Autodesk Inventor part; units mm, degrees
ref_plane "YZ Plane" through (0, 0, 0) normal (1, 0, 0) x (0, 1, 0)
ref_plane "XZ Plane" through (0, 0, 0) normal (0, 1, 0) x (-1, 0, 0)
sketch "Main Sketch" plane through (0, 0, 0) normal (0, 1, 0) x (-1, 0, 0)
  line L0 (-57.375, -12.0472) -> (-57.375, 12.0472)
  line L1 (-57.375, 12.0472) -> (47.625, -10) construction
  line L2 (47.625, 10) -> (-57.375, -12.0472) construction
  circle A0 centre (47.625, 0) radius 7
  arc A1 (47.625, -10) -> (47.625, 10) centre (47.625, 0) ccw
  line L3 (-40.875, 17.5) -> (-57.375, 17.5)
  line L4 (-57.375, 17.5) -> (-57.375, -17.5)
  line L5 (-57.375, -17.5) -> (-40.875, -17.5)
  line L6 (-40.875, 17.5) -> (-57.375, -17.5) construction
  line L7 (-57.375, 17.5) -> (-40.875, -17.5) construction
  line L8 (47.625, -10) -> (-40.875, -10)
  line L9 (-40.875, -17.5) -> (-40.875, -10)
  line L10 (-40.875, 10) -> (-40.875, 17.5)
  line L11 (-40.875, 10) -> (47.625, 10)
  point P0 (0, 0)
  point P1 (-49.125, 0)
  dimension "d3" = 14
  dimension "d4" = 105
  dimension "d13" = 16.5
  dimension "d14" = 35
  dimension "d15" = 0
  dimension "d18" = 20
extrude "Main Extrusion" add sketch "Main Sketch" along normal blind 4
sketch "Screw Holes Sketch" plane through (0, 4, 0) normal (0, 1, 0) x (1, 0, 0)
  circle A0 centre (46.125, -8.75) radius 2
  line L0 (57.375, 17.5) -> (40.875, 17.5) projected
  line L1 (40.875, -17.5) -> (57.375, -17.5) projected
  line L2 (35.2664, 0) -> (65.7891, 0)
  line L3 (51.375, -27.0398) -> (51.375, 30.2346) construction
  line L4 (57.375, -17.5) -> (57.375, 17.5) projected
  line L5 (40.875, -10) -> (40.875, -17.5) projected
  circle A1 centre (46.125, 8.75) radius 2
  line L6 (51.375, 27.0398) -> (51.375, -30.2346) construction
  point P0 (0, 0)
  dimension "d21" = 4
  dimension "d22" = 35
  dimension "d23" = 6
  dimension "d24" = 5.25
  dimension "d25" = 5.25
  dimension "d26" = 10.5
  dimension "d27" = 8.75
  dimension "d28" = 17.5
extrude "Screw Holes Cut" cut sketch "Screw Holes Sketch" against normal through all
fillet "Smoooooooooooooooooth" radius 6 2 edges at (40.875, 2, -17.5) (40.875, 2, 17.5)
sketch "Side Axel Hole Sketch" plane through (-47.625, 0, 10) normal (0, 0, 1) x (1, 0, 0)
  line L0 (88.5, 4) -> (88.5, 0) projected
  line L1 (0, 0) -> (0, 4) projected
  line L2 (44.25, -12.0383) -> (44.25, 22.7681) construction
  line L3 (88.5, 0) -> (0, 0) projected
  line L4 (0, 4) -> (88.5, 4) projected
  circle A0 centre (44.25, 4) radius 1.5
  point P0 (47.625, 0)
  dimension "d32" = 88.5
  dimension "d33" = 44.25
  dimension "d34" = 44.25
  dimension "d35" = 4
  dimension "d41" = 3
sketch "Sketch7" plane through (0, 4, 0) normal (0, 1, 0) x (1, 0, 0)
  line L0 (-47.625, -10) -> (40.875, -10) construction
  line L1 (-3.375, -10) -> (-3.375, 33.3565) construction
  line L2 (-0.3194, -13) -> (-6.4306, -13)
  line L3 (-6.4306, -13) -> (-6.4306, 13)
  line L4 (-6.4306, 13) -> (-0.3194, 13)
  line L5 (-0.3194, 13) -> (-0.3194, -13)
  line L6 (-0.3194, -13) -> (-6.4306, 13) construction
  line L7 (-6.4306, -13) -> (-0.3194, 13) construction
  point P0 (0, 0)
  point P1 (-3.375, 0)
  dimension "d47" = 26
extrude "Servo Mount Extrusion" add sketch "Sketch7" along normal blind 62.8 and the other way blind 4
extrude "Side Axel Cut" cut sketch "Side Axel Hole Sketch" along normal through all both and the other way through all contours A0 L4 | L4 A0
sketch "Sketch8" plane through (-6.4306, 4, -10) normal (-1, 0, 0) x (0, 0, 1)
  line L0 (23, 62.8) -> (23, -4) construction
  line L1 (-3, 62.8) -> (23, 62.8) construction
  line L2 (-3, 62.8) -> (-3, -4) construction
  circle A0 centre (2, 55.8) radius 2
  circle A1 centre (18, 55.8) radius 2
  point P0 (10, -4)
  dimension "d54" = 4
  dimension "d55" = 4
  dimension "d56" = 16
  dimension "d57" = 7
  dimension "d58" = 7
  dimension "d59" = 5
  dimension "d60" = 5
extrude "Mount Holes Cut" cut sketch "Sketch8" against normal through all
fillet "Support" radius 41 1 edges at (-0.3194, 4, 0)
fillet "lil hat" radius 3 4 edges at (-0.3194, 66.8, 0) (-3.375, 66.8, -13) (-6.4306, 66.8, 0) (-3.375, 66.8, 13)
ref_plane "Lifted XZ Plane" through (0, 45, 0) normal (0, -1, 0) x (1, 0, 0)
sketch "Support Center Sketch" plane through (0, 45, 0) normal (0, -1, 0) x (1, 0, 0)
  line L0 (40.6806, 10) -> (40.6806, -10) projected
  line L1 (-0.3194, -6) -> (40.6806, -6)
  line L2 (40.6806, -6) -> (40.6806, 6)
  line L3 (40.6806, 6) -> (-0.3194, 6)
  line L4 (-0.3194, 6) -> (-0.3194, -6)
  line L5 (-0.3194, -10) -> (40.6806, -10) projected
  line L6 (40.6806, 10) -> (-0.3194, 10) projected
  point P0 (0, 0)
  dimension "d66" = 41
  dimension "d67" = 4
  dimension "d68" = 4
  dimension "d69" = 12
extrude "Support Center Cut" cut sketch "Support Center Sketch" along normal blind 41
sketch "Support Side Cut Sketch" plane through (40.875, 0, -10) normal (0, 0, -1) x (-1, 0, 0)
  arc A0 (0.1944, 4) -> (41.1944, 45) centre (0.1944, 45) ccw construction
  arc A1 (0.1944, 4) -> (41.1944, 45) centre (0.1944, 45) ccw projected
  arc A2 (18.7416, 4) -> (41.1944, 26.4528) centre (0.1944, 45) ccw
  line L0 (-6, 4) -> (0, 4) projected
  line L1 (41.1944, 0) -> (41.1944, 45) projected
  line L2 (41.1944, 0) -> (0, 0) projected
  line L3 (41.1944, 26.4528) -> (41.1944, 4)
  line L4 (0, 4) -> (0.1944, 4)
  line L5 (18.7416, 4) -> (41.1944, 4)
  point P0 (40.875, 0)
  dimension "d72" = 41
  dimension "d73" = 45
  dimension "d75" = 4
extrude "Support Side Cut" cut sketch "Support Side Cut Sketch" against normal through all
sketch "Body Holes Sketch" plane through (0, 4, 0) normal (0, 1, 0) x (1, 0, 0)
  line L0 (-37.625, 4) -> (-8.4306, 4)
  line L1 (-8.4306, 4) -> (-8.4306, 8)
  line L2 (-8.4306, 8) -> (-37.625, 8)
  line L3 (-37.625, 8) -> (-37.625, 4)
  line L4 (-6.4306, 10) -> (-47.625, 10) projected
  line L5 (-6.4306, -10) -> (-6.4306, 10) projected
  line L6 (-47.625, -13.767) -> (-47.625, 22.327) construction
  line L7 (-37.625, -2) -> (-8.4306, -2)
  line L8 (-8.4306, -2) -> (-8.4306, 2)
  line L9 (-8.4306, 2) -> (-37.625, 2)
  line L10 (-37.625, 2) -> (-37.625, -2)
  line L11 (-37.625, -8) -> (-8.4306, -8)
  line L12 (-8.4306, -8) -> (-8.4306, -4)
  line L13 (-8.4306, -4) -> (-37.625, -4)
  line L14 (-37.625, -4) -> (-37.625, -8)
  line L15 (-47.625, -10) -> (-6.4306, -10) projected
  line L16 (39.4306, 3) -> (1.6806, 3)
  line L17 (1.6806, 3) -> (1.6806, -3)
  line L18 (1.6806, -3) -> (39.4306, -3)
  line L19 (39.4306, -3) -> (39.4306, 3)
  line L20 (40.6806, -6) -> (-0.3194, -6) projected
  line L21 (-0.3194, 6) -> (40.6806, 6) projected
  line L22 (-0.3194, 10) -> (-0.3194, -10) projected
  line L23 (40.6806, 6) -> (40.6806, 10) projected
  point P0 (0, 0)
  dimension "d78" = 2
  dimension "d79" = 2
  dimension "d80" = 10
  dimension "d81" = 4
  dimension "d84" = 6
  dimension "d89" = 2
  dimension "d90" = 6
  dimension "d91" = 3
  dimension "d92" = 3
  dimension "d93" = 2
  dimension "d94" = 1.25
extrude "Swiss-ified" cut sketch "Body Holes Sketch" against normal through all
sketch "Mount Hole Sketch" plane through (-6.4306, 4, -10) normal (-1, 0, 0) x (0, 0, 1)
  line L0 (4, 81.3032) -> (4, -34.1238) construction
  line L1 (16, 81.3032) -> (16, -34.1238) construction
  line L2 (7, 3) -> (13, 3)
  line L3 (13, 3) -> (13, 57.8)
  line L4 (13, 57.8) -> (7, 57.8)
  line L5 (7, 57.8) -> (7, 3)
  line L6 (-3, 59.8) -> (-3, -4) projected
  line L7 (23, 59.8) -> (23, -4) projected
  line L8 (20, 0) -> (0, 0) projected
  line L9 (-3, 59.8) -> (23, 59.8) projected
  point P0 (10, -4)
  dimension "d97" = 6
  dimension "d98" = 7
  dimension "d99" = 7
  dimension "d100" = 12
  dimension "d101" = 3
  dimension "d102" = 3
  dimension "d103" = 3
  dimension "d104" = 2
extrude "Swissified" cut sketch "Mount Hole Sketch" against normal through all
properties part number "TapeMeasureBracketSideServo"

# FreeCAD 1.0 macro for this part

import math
import FreeCAD as App
import Part
import Sketcher
from FreeCAD import Vector


def edges_at(feature, points):
    """Names of the edges that pass closest to the given points."""
    edges = feature.Shape.Edges
    near = lambda p: min(range(len(edges)), key=lambda i: edges[i].distToShape(Part.Vertex(*p))[0])
    return sorted({f"Edge{near(p) + 1}" for p in points})


def add_polygon(sketch, points):
    """Adds a closed chain of lines whose ends are joined by coincident constraints."""
    first, n = sketch.GeometryCount, len(points)
    for a, b in zip(points, points[1:] + points[:1]):
        sketch.addGeometry(Part.LineSegment(App.Vector(*a, 0), App.Vector(*b, 0)), False)
    for i in range(n):
        sketch.addConstraint(Sketcher.Constraint("Coincident", first + i, 2, first + (i + 1) % n, 1))

doc = App.newDocument("Part")
body = doc.addObject("PartDesign::Body", "Body")

# Sketch on XZ plane
sketch1 = body.newObject("Sketcher::SketchObject", "Sketch")
sketch1.AttachmentSupport = (doc.getObject("XZ_Plane"), [""])
sketch1.MapMode = "FlatFace"
sketch1.addGeometry(Part.LineSegment(Vector(57.375, 17.5, 0), Vector(57.375, -17.5, 0)), False)
sketch1.addGeometry(Part.LineSegment(Vector(57.375, -17.5, 0), Vector(40.875, -17.5, 0)), False)
sketch1.addGeometry(Part.LineSegment(Vector(40.875, -17.5, 0), Vector(40.875, -10, 0)), False)
sketch1.addGeometry(Part.LineSegment(Vector(40.875, -10, 0), Vector(-47.625, -10, 0)), False)
sketch1.addGeometry(Part.ArcOfCircle(Part.Circle(Vector(-47.625, 0, 0), Vector(0, 0, 1), 10), math.radians(90), math.radians(270)), False)
sketch1.addGeometry(Part.LineSegment(Vector(-47.625, 10, 0), Vector(40.875, 10, 0)), False)
sketch1.addGeometry(Part.LineSegment(Vector(40.875, 10, 0), Vector(40.875, 17.5, 0)), False)
sketch1.addGeometry(Part.LineSegment(Vector(40.875, 17.5, 0), Vector(57.375, 17.5, 0)), False)
sketch1.addGeometry(Part.Circle(Vector(-47.625, 0, 0), Vector(0, 0, 1), 7), False)
sketch1.addConstraint(Sketcher.Constraint("Coincident", 0, 2, 1, 1))
sketch1.addConstraint(Sketcher.Constraint("Coincident", 1, 2, 2, 1))
sketch1.addConstraint(Sketcher.Constraint("Coincident", 2, 2, 3, 1))
sketch1.addConstraint(Sketcher.Constraint("Tangent", 3, 2, 4, 2))
sketch1.addConstraint(Sketcher.Constraint("Tangent", 4, 1, 5, 1))
sketch1.addConstraint(Sketcher.Constraint("Coincident", 5, 2, 6, 1))
sketch1.addConstraint(Sketcher.Constraint("Coincident", 6, 2, 7, 1))
sketch1.addConstraint(Sketcher.Constraint("Coincident", 7, 2, 0, 1))
sketch1.addConstraint(Sketcher.Constraint("Vertical", 0))
sketch1.addConstraint(Sketcher.Constraint("Horizontal", 1))
sketch1.addConstraint(Sketcher.Constraint("Vertical", 2))
sketch1.addConstraint(Sketcher.Constraint("Horizontal", 3))
sketch1.addConstraint(Sketcher.Constraint("Horizontal", 5))
sketch1.addConstraint(Sketcher.Constraint("Vertical", 6))
sketch1.addConstraint(Sketcher.Constraint("Horizontal", 7))
sketch1.addConstraint(Sketcher.Constraint("Coincident", 8, 3, 4, 3))
sketch1.addConstraint(Sketcher.Constraint("Symmetric", 2, 2, 5, 2, -1))
sketch1.addConstraint(Sketcher.Constraint("Equal", 2, 6))
sketch1.addConstraint(Sketcher.Constraint("Diameter", 8, 14.0))
sketch1.addConstraint(Sketcher.Constraint("Radius", 4, 10.0))
sketch1.addConstraint(Sketcher.Constraint("DistanceY", 0, 2, 0, 1, 35.0))
sketch1.addConstraint(Sketcher.Constraint("DistanceX", 1, 2, 1, 1, 16.5))
sketch1.addConstraint(Sketcher.Constraint("DistanceX", 4, 3, 0, 2, 105.0))
sketch1.addConstraint(Sketcher.Constraint("DistanceX", 4, 3, -1, 1, 47.625))
pad1 = body.newObject("PartDesign::Pad", "Pad")
pad1.Profile = sketch1
pad1.Length = 4
pad1.Reversed = True

# Sketch on XZ plane
sketch2 = body.newObject("Sketcher::SketchObject", "Sketch001")
sketch2.AttachmentSupport = (doc.getObject("XZ_Plane"), [""])
sketch2.MapMode = "FlatFace"
sketch2.AttachmentOffset = App.Placement(Vector(0, 0, -4), App.Rotation())
sketch2.addGeometry(Part.Circle(Vector(46.125, 8.75, 0), Vector(0, 0, 1), 2), False)
sketch2.addGeometry(Part.Circle(Vector(46.125, -8.75, 0), Vector(0, 0, 1), 2), False)
sketch2.addConstraint(Sketcher.Constraint("Equal", 0, 1))
sketch2.addConstraint(Sketcher.Constraint("Symmetric", 0, 3, 1, 3, -1))
sketch2.addConstraint(Sketcher.Constraint("Diameter", 0, 4.0))
sketch2.addConstraint(Sketcher.Constraint("DistanceY", 1, 3, 0, 3, 17.5))
sketch2.addConstraint(Sketcher.Constraint("DistanceX", -1, 1, 0, 3, 46.125))
pocket1 = body.newObject("PartDesign::Pocket", "Pocket")
pocket1.Profile = sketch2
pocket1.Type = "ThroughAll"
pocket1.Reversed = True
doc.recompute()

fillet = body.newObject("PartDesign::Fillet", "Fillet")
fillet.Base = (pocket1, edges_at(pocket1, [(40.875, 2, -17.5), (40.875, 2, 17.5)]))
fillet.Radius = 6

# Sketch on XZ plane
sketch3 = body.newObject("Sketcher::SketchObject", "Sketch002")
sketch3.AttachmentSupport = (doc.getObject("XZ_Plane"), [""])
sketch3.MapMode = "FlatFace"
sketch3.AttachmentOffset = App.Placement(Vector(0, 0, -4), App.Rotation())
add_polygon(sketch3, [(-6.4306, 13), (-0.3194, 13), (-0.3194, -13), (-6.4306, -13)])  # lines 0-3
sketch3.addConstraint(Sketcher.Constraint("Horizontal", 0))
sketch3.addConstraint(Sketcher.Constraint("Vertical", 1))
sketch3.addConstraint(Sketcher.Constraint("Horizontal", 2))
sketch3.addConstraint(Sketcher.Constraint("Vertical", 3))
sketch3.addConstraint(Sketcher.Constraint("DistanceY", 1, 2, 1, 1, 26.0))
sketch3.addConstraint(Sketcher.Constraint("DistanceY", -1, 1, 0, 2, 13.0))
sketch3.addConstraint(Sketcher.Constraint("DistanceX", 0, 1, 0, 2, 6.1112))
sketch3.addConstraint(Sketcher.Constraint("DistanceX", 0, 2, -1, 1, 0.3194))
pad2 = body.newObject("PartDesign::Pad", "Pad001")
pad2.Profile = sketch3
pad2.Type = "TwoLengths"
pad2.Length = 62.8
pad2.Length2 = 4
pad2.Reversed = True

# Sketch on XY plane
sketch4 = body.newObject("Sketcher::SketchObject", "Sketch003")
sketch4.AttachmentSupport = (doc.getObject("XY_Plane"), [""])
sketch4.MapMode = "FlatFace"
sketch4.AttachmentOffset = App.Placement(Vector(0, 0, 10), App.Rotation())
sketch4.addGeometry(Part.Circle(Vector(-3.375, 4, 0), Vector(0, 0, 1), 1.5), False)
sketch4.addConstraint(Sketcher.Constraint("Diameter", 0, 3.0))
sketch4.addConstraint(Sketcher.Constraint("DistanceY", -1, 1, 0, 3, 4.0))
sketch4.addConstraint(Sketcher.Constraint("DistanceX", 0, 3, -1, 1, 3.375))
pocket2 = body.newObject("PartDesign::Pocket", "Pocket001")
pocket2.Profile = sketch4
pocket2.Type = "ThroughAll"
pocket2.Midplane = True

# Sketch on YZ plane
sketch5 = body.newObject("Sketcher::SketchObject", "Sketch004")
sketch5.AttachmentSupport = (doc.getObject("YZ_Plane"), [""])
sketch5.MapMode = "FlatFace"
sketch5.AttachmentOffset = App.Placement(Vector(0, 0, -6.4306), App.Rotation())
sketch5.addGeometry(Part.Circle(Vector(59.8, -8, 0), Vector(0, 0, 1), 2), False)
sketch5.addGeometry(Part.Circle(Vector(59.8, 8, 0), Vector(0, 0, 1), 2), False)
sketch5.addConstraint(Sketcher.Constraint("Equal", 0, 1))
sketch5.addConstraint(Sketcher.Constraint("Symmetric", 0, 3, 1, 3, -1))
sketch5.addConstraint(Sketcher.Constraint("Diameter", 0, 4.0))
sketch5.addConstraint(Sketcher.Constraint("DistanceY", 0, 3, 1, 3, 16.0))
sketch5.addConstraint(Sketcher.Constraint("DistanceX", -1, 1, 0, 3, 59.8))
pocket3 = body.newObject("PartDesign::Pocket", "Pocket002")
pocket3.Profile = sketch5
pocket3.Type = "ThroughAll"
pocket3.Reversed = True
doc.recompute()

fillet2 = body.newObject("PartDesign::Fillet", "Fillet001")
fillet2.Base = (pocket3, edges_at(pocket3, [(-0.319, 4, 0)]))
fillet2.Radius = 41
doc.recompute()

fillet3 = body.newObject("PartDesign::Fillet", "Fillet002")
fillet3.Base = (fillet2, edges_at(fillet2, [
    (-0.319, 66.8, 0),
    (-3.375, 66.8, -13),
    (-6.431, 66.8, 0),
    (-3.375, 66.8, 13),
]))
fillet3.Radius = 3

# Sketch on XZ plane
sketch6 = body.newObject("Sketcher::SketchObject", "Sketch005")
sketch6.AttachmentSupport = (doc.getObject("XZ_Plane"), [""])
sketch6.MapMode = "FlatFace"
sketch6.AttachmentOffset = App.Placement(Vector(0, 0, -45), App.Rotation())
add_polygon(sketch6, [(40.6806, -6), (40.6806, 6), (-0.3194, 6), (-0.3194, -6)])  # lines 0-3
sketch6.addConstraint(Sketcher.Constraint("Vertical", 0))
sketch6.addConstraint(Sketcher.Constraint("Horizontal", 1))
sketch6.addConstraint(Sketcher.Constraint("Vertical", 2))
sketch6.addConstraint(Sketcher.Constraint("Horizontal", 3))
sketch6.addConstraint(Sketcher.Constraint("DistanceX", 1, 2, 1, 1, 41.0))
sketch6.addConstraint(Sketcher.Constraint("DistanceY", 0, 1, 0, 2, 12.0))
sketch6.addConstraint(Sketcher.Constraint("DistanceY", -1, 1, 0, 2, 6.0))
sketch6.addConstraint(Sketcher.Constraint("DistanceX", -1, 1, 0, 2, 40.6806))
pocket4 = body.newObject("PartDesign::Pocket", "Pocket003")
pocket4.Profile = sketch6
pocket4.Length = 41
pocket4.Reversed = True

# Sketch on XY plane
sketch7 = body.newObject("Sketcher::SketchObject", "Sketch006")
sketch7.AttachmentSupport = (doc.getObject("XY_Plane"), [""])
sketch7.MapMode = "FlatFace"
sketch7.AttachmentOffset = App.Placement(Vector(0, 0, -10), App.Rotation())
sketch7.addGeometry(Part.ArcOfCircle(Part.Circle(Vector(40.6806, 45, 0), Vector(0, 0, 1), 44.999985), math.radians(-155.659396), math.radians(-114.340604)), False)
sketch7.addGeometry(Part.LineSegment(Vector(22.1334, 4, 0), Vector(-0.3194, 4, 0)), False)
sketch7.addGeometry(Part.LineSegment(Vector(-0.3194, 4, 0), Vector(-0.3194, 26.4528, 0)), False)
sketch7.addConstraint(Sketcher.Constraint("Coincident", 0, 2, 1, 1))
sketch7.addConstraint(Sketcher.Constraint("Coincident", 1, 2, 2, 1))
sketch7.addConstraint(Sketcher.Constraint("Coincident", 2, 2, 0, 1))
sketch7.addConstraint(Sketcher.Constraint("Horizontal", 1))
sketch7.addConstraint(Sketcher.Constraint("Vertical", 2))
sketch7.addConstraint(Sketcher.Constraint("Equal", 1, 2))
sketch7.addConstraint(Sketcher.Constraint("Radius", 0, 45.0))
sketch7.addConstraint(Sketcher.Constraint("DistanceY", -1, 1, 0, 3, 45.0))
sketch7.addConstraint(Sketcher.Constraint("DistanceY", -1, 1, 0, 2, 4.0))
sketch7.addConstraint(Sketcher.Constraint("DistanceX", -1, 1, 0, 3, 40.6806))
pocket5 = body.newObject("PartDesign::Pocket", "Pocket004")
pocket5.Profile = sketch7
pocket5.Type = "ThroughAll"
pocket5.Reversed = True

# Sketch on XZ plane
sketch8 = body.newObject("Sketcher::SketchObject", "Sketch007")
sketch8.AttachmentSupport = (doc.getObject("XZ_Plane"), [""])
sketch8.MapMode = "FlatFace"
sketch8.AttachmentOffset = App.Placement(Vector(0, 0, -4), App.Rotation())
add_polygon(sketch8, [(-37.625, -8), (-37.625, -4), (-8.4306, -4), (-8.4306, -8)])  # lines 0-3
add_polygon(sketch8, [(-37.625, -2), (-37.625, 2), (-8.4306, 2), (-8.4306, -2)])  # lines 4-7
add_polygon(sketch8, [(-37.625, 4), (-37.625, 8), (-8.4306, 8), (-8.4306, 4)])  # lines 8-11
add_polygon(sketch8, [(39.4306, 3), (39.4306, -3), (1.6806, -3), (1.6806, 3)])  # lines 12-15
sketch8.addConstraint(Sketcher.Constraint("Vertical", 0))
sketch8.addConstraint(Sketcher.Constraint("Horizontal", 1))
sketch8.addConstraint(Sketcher.Constraint("Vertical", 2))
sketch8.addConstraint(Sketcher.Constraint("Horizontal", 3))
sketch8.addConstraint(Sketcher.Constraint("Vertical", 4))
sketch8.addConstraint(Sketcher.Constraint("Horizontal", 5))
sketch8.addConstraint(Sketcher.Constraint("Vertical", 6))
sketch8.addConstraint(Sketcher.Constraint("Horizontal", 7))
sketch8.addConstraint(Sketcher.Constraint("Vertical", 8))
sketch8.addConstraint(Sketcher.Constraint("Horizontal", 9))
sketch8.addConstraint(Sketcher.Constraint("Vertical", 10))
sketch8.addConstraint(Sketcher.Constraint("Horizontal", 11))
sketch8.addConstraint(Sketcher.Constraint("Vertical", 12))
sketch8.addConstraint(Sketcher.Constraint("Horizontal", 13))
sketch8.addConstraint(Sketcher.Constraint("Vertical", 14))
sketch8.addConstraint(Sketcher.Constraint("Horizontal", 15))
sketch8.addConstraint(Sketcher.Constraint("Symmetric", 3, 2, 8, 2, -1))
sketch8.addConstraint(Sketcher.Constraint("Symmetric", 1, 2, 10, 2, -1))
sketch8.addConstraint(Sketcher.Constraint("Vertical", 3, 2, 4, 2))
sketch8.addConstraint(Sketcher.Constraint("Vertical", 2, 2, 5, 2))
sketch8.addConstraint(Sketcher.Constraint("Equal", 2, 4))
sketch8.addConstraint(Sketcher.Constraint("DistanceY", 0, 1, 0, 2, 4.0))
sketch8.addConstraint(Sketcher.Constraint("DistanceY", 12, 2, 12, 1, 6.0))
sketch8.addConstraint(Sketcher.Constraint("DistanceY", 0, 2, -1, 1, 4.0))
sketch8.addConstraint(Sketcher.Constraint("DistanceY", -1, 1, 4, 2, 2.0))
sketch8.addConstraint(Sketcher.Constraint("DistanceY", 12, 2, -1, 1, 3.0))
sketch8.addConstraint(Sketcher.Constraint("DistanceX", 13, 2, 13, 1, 37.75))
sketch8.addConstraint(Sketcher.Constraint("DistanceX", 1, 1, 1, 2, 29.1944))
sketch8.addConstraint(Sketcher.Constraint("DistanceX", 0, 2, -1, 1, 37.625))
sketch8.addConstraint(Sketcher.Constraint("DistanceX", -1, 1, 12, 2, 39.4306))
pocket6 = body.newObject("PartDesign::Pocket", "Pocket005")
pocket6.Profile = sketch8
pocket6.Type = "ThroughAll"
pocket6.Reversed = True

# Sketch on YZ plane
sketch9 = body.newObject("Sketcher::SketchObject", "Sketch008")
sketch9.AttachmentSupport = (doc.getObject("YZ_Plane"), [""])
sketch9.MapMode = "FlatFace"
sketch9.AttachmentOffset = App.Placement(Vector(0, 0, -6.4306), App.Rotation())
add_polygon(sketch9, [(61.8, -3), (7, -3), (7, 3), (61.8, 3)])  # lines 0-3
sketch9.addConstraint(Sketcher.Constraint("Horizontal", 0))
sketch9.addConstraint(Sketcher.Constraint("Vertical", 1))
sketch9.addConstraint(Sketcher.Constraint("Horizontal", 2))
sketch9.addConstraint(Sketcher.Constraint("Vertical", 3))
sketch9.addConstraint(Sketcher.Constraint("DistanceY", 1, 1, 1, 2, 6.0))
sketch9.addConstraint(Sketcher.Constraint("DistanceX", -1, 1, 0, 2, 7.0))
sketch9.addConstraint(Sketcher.Constraint("DistanceY", 0, 2, -1, 1, 3.0))
sketch9.addConstraint(Sketcher.Constraint("DistanceX", 0, 2, 0, 1, 54.8))
pocket7 = body.newObject("PartDesign::Pocket", "Pocket006")
pocket7.Profile = sketch9
pocket7.Type = "ThroughAll"
pocket7.Reversed = True

doc.recompute()
